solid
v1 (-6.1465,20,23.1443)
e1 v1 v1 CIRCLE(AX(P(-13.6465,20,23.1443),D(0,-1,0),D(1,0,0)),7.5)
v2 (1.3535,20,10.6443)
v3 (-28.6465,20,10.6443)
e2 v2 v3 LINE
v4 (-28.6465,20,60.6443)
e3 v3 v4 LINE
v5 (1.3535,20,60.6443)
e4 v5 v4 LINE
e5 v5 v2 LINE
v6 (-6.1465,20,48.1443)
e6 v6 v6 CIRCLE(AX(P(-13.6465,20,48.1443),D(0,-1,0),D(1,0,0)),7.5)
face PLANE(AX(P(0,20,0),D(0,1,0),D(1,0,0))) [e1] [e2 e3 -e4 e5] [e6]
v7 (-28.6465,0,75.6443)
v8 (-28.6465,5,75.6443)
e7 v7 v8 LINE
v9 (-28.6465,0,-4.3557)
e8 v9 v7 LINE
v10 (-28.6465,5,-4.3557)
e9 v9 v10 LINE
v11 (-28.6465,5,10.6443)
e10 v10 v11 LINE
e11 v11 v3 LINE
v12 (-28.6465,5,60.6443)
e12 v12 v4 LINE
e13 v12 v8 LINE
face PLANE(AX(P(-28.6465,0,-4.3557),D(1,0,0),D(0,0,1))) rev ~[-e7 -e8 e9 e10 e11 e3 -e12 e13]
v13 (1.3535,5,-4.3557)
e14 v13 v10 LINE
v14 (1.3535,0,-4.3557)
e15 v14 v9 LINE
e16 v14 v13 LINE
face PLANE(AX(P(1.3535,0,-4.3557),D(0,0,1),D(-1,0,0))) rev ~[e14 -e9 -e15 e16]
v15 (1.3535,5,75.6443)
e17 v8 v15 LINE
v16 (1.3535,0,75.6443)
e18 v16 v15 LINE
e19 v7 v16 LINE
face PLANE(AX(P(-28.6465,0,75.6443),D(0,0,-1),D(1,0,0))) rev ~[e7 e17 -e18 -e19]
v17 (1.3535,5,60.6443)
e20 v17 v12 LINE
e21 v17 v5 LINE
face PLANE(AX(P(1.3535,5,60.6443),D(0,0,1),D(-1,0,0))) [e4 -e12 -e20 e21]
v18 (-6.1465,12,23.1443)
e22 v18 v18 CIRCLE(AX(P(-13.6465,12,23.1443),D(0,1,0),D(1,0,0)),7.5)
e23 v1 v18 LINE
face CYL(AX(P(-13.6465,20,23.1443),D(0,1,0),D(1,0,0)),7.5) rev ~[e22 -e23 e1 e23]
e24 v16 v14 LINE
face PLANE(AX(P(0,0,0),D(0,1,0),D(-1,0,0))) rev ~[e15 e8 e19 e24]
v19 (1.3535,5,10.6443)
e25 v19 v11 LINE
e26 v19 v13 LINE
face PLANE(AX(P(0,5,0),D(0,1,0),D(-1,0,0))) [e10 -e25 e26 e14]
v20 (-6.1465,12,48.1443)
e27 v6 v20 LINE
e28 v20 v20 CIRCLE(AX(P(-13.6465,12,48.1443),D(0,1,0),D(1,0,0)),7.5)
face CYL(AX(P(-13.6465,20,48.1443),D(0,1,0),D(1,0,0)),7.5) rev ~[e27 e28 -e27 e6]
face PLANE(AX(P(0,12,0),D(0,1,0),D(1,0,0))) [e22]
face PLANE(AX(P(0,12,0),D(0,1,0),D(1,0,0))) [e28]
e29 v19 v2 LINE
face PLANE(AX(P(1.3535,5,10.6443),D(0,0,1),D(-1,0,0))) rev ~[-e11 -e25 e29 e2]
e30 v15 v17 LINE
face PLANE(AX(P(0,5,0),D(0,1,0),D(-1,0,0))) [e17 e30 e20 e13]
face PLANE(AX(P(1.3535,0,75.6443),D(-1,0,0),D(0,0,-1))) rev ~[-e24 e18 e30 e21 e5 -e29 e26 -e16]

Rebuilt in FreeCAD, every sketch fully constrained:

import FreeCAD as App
import Part
import Sketcher
from FreeCAD import Vector
Q = App.Units.Quantity


def add_polygon(sketch, points):
    """Adds a closed chain of lines whose ends are joined by coincident constraints."""
    first, n = sketch.GeometryCount, len(points)
    for a, b in zip(points, points[1:] + points[:1]):
        sketch.addGeometry(Part.LineSegment(App.Vector(*a, 0), App.Vector(*b, 0)), False)
    for i in range(n):
        sketch.addConstraint(Sketcher.Constraint("Coincident", first + i, 2, first + (i + 1) % n, 1))

doc = App.newDocument("Part")
body = doc.addObject("PartDesign::Body", "Body")

sketch1 = doc.addObject("Sketcher::SketchObject", "Sketch")
body.addObject(sketch1)
sketch1.AttachmentSupport = (doc.XZ_Plane, [""])
sketch1.MapMode = "FlatFace"
add_polygon(sketch1, [(-29, -4), (-29, 76), (1, 76), (1, -4)])
sketch1.addConstraint([
    Sketcher.Constraint("Vertical", 0),
    Sketcher.Constraint("Horizontal", 1),
    Sketcher.Constraint("Vertical", 2),
    Sketcher.Constraint("Horizontal", 3),
    Sketcher.Constraint("DistanceX", 1, 1, 1, 2, Q("30 mm")),
    Sketcher.Constraint("DistanceY", 0, 1, 0, 2, Q("80 mm")),
    Sketcher.Constraint("DistanceX", 0, 2, -1, 1, Q("28.6465 mm")),
    Sketcher.Constraint("DistanceY", -1, 1, 0, 2, Q("75.6443 mm")),
])
pad1 = doc.addObject("PartDesign::Pad", "Pad")
body.addObject(pad1)
pad1.Profile = sketch1
pad1.Length = 5
pad1.Reversed = True

sketch2 = doc.addObject("Sketcher::SketchObject", "Sketch001")
body.addObject(sketch2)
sketch2.AttachmentSupport = (doc.XZ_Plane, [""])
sketch2.MapMode = "FlatFace"
sketch2.AttachmentOffset = App.Placement(Vector(0, 0, -5), App.Rotation())
add_polygon(sketch2, [(-29, 61), (1, 61), (1, 11), (-29, 11)])
sketch2.addConstraint([
    Sketcher.Constraint("Horizontal", 0),
    Sketcher.Constraint("Vertical", 1),
    Sketcher.Constraint("Horizontal", 2),
    Sketcher.Constraint("Vertical", 3),
    Sketcher.Constraint("DistanceX", 0, 1, 0, 2, Q("30 mm")),
    Sketcher.Constraint("DistanceY", 1, 2, 1, 1, Q("50 mm")),
    Sketcher.Constraint("DistanceX", -1, 1, 0, 2, Q("1.3535 mm")),
    Sketcher.Constraint("DistanceY", -1, 1, 0, 2, Q("60.6443 mm")),
])
pad2 = doc.addObject("PartDesign::Pad", "Pad001")
body.addObject(pad2)
pad2.Profile = sketch2
pad2.Length = 15
pad2.Reversed = True

sketch3 = doc.addObject("Sketcher::SketchObject", "Sketch002")
body.addObject(sketch3)
sketch3.AttachmentSupport = (doc.XZ_Plane, [""])
sketch3.MapMode = "FlatFace"
sketch3.AttachmentOffset = App.Placement(Vector(0, 0, -20), App.Rotation())
sketch3.addGeometry([
    Part.Circle(Vector(-14, 48, 0), Vector(0, 0, 1), 8),
    Part.Circle(Vector(-14, 23, 0), Vector(0, 0, 1), 8),
], False)
sketch3.addConstraint([
    Sketcher.Constraint("Equal", 0, 1),
    Sketcher.Constraint("Vertical", 0, 3, 1, 3),
    Sketcher.Constraint("Diameter", 0, Q("15 mm")),
    Sketcher.Constraint("DistanceY", 1, 3, 0, 3, Q("25 mm")),
    Sketcher.Constraint("DistanceX", 0, 3, -1, 1, Q("13.6465 mm")),
    Sketcher.Constraint("DistanceY", -1, 1, 0, 3, Q("48.1443 mm")),
])
pocket1 = doc.addObject("PartDesign::Pocket", "Pocket")
body.addObject(pocket1)
pocket1.Profile = sketch3
pocket1.Length = 8
pocket1.Reversed = True

doc.recompute()
